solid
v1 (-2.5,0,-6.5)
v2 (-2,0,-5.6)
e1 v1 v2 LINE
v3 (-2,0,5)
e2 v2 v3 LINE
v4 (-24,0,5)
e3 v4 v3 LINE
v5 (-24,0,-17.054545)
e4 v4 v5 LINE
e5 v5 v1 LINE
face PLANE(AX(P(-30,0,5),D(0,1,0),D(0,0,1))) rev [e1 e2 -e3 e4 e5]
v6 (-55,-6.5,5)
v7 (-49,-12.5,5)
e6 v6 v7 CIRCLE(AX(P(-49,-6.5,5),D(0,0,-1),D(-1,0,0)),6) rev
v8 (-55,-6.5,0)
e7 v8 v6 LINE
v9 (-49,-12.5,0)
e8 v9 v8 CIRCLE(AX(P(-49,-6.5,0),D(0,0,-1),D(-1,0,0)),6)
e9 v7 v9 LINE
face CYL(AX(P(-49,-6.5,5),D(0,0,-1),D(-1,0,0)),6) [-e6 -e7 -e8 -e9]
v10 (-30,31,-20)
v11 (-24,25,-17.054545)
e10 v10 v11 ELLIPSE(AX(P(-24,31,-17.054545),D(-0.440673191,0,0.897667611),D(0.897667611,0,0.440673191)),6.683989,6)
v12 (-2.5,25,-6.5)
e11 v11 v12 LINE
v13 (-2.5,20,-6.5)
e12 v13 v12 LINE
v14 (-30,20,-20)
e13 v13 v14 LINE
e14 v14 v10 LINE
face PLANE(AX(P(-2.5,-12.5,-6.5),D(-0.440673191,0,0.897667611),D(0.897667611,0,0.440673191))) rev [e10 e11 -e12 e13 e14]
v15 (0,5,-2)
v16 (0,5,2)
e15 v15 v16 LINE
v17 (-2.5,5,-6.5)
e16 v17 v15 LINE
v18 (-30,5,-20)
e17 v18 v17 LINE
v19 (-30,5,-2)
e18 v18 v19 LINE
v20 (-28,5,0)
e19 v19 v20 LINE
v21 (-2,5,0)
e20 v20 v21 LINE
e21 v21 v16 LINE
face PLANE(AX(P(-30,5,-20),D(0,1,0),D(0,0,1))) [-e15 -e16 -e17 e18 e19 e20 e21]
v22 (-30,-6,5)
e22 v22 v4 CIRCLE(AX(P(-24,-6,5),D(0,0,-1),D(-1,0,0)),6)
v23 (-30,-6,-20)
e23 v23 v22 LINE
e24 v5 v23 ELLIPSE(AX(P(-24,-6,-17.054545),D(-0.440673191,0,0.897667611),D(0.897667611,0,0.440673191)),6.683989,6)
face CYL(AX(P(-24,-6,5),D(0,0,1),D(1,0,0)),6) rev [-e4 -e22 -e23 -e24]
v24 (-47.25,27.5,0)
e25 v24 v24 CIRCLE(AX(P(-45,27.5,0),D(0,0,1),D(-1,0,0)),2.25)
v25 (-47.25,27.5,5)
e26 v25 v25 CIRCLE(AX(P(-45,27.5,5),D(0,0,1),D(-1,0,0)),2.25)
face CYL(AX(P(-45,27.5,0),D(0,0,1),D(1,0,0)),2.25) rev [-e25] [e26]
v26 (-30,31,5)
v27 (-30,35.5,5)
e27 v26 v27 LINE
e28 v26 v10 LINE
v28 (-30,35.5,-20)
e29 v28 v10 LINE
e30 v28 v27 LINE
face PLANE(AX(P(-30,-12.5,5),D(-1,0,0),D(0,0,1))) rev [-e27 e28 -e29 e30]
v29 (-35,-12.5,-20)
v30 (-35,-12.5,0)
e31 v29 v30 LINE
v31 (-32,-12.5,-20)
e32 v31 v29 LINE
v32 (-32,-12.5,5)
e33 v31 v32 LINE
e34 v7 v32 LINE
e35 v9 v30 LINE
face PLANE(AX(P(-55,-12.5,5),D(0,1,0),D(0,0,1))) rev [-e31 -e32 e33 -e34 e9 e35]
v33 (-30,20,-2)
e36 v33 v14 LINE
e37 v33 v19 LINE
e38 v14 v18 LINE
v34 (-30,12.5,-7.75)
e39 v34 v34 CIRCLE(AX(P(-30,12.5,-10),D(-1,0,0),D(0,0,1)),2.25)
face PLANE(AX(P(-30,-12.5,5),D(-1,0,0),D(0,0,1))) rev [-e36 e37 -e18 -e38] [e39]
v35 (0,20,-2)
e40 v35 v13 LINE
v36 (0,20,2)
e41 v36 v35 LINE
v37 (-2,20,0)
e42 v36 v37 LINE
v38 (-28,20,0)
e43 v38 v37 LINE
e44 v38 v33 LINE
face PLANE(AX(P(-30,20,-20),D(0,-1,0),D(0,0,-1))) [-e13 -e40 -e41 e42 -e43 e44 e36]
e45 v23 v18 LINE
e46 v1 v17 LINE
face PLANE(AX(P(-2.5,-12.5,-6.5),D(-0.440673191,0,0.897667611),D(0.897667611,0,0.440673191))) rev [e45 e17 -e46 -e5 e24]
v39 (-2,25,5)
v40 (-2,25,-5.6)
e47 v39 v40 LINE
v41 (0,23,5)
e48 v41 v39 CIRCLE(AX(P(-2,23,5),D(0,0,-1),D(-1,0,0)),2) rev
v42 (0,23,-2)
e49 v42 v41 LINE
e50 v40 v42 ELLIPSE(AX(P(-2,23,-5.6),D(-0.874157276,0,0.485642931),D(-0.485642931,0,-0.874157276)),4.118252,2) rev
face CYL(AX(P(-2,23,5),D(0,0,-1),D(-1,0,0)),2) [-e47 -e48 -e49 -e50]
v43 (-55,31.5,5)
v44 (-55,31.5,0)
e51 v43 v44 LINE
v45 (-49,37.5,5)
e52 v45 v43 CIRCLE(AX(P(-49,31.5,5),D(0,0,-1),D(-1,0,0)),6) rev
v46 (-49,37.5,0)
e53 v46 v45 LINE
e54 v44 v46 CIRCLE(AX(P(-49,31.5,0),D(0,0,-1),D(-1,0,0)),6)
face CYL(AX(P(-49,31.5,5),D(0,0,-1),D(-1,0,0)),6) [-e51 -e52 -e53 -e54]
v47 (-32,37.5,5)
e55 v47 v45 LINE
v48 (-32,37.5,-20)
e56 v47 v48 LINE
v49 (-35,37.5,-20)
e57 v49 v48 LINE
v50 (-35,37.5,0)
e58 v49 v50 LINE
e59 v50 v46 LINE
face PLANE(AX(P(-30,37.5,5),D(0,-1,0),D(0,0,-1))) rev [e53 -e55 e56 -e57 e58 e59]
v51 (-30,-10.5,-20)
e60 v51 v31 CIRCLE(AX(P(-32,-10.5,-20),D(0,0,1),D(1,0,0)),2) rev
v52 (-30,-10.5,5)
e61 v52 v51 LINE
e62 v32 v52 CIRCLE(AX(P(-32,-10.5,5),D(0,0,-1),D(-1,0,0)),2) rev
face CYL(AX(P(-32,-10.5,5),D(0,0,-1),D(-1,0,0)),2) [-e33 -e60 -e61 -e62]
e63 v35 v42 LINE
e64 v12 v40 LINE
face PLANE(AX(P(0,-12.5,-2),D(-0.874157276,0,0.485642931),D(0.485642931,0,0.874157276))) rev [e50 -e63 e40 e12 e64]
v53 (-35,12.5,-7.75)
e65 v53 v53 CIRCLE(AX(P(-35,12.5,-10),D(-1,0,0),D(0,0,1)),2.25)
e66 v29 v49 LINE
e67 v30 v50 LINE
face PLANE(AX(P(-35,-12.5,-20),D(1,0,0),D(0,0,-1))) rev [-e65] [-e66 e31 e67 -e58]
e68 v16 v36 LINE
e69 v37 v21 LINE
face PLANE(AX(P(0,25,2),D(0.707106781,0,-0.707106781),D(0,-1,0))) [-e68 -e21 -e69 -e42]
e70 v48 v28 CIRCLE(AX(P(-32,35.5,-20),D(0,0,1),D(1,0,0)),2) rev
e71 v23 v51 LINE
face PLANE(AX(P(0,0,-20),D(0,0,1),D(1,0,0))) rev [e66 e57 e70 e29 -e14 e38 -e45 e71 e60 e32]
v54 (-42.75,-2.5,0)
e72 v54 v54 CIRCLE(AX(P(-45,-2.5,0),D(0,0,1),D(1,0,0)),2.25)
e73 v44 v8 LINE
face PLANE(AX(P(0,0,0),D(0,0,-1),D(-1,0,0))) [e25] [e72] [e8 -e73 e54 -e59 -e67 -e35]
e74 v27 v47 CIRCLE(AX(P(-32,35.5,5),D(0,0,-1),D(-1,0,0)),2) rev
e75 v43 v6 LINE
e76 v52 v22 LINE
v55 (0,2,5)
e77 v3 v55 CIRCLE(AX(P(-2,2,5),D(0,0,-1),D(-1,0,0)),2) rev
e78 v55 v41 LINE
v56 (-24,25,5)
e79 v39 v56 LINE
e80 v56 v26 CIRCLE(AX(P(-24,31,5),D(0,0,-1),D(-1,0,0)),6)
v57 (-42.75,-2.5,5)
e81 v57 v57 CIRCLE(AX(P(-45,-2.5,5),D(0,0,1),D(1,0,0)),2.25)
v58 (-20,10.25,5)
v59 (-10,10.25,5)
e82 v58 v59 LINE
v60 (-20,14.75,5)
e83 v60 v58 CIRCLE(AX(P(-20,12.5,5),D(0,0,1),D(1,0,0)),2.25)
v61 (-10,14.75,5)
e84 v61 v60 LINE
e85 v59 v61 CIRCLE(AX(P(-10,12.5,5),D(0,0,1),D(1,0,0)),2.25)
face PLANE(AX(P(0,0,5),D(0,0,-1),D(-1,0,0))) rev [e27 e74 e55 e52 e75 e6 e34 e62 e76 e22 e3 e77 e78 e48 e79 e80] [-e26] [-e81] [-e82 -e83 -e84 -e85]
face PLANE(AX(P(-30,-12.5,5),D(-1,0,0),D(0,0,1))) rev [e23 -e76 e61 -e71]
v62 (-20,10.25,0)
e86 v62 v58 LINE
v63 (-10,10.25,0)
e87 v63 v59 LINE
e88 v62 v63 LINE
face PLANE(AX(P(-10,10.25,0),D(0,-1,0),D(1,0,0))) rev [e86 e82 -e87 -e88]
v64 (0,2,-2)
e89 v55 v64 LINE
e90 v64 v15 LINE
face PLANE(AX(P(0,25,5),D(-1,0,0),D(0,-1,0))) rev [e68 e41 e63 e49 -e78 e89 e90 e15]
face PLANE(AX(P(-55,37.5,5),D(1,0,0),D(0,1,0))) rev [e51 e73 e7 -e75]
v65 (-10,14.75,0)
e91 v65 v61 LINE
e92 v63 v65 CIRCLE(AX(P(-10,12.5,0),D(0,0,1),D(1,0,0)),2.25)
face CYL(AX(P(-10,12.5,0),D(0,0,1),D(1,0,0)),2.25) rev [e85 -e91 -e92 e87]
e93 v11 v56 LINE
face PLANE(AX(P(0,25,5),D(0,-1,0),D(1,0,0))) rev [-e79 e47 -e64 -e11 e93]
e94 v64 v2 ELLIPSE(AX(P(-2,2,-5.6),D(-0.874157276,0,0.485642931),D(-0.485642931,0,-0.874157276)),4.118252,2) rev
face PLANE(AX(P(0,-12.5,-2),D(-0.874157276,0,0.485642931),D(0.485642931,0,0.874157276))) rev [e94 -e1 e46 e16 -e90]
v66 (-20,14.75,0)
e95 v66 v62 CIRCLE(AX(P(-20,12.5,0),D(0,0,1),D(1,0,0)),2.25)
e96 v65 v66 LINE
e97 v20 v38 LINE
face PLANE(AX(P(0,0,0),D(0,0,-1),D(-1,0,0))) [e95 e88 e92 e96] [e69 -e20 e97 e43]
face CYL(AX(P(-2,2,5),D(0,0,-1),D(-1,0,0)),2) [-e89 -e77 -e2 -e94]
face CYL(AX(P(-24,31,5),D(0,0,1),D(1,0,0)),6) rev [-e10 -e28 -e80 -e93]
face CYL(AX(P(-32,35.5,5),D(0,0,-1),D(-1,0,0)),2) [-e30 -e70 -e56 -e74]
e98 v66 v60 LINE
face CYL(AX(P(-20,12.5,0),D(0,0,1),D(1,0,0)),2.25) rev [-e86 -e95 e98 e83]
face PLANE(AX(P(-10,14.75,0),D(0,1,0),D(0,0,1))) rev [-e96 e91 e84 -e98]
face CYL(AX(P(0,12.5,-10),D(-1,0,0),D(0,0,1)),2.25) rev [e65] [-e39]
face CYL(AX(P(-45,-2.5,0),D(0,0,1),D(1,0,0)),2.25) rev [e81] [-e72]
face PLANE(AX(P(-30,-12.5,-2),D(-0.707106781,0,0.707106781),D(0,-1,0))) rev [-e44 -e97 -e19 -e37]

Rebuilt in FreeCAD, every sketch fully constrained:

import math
import FreeCAD as App
import Part
import Sketcher
from FreeCAD import Vector


def edges_at(feature, points):
    """Names of the edges that pass closest to the given points."""
    edges = feature.Shape.Edges
    near = lambda p: min(range(len(edges)), key=lambda i: edges[i].distToShape(Part.Vertex(*p))[0])
    return sorted({f"Edge{near(p) + 1}" for p in points})

doc = App.newDocument("Part")
body = doc.addObject("PartDesign::Body", "Body")

sketch1 = body.newObject("Sketcher::SketchObject", "Sketch")
sketch1.AttachmentSupport = (doc.getObject("XY_Plane"), [""])
sketch1.MapMode = "FlatFace"
sketch1.addGeometry([
    Part.LineSegment(Vector(0, 0, 0), Vector(0, 25, 0)),
    Part.LineSegment(Vector(0, 25, 0), Vector(-30, 25, 0)),
    Part.LineSegment(Vector(-30, 25, 0), Vector(-30, 38, 0)),
    Part.LineSegment(Vector(-30, 38, 0), Vector(-55, 38, 0)),
    Part.LineSegment(Vector(-55, 38, 0), Vector(-55, -12, 0)),
    Part.LineSegment(Vector(-55, -12, 0), Vector(-30, -12, 0)),
    Part.LineSegment(Vector(-30, -12, 0), Vector(-30, 0, 0)),
    Part.LineSegment(Vector(-30, 0, 0), Vector(0, 0, 0)),
], False)
sketch1.addConstraint([
    Sketcher.Constraint("Coincident", 0, 2, 1, 1),
    Sketcher.Constraint("Coincident", 1, 2, 2, 1),
    Sketcher.Constraint("Coincident", 2, 2, 3, 1),
    Sketcher.Constraint("Coincident", 3, 2, 4, 1),
    Sketcher.Constraint("Coincident", 4, 2, 5, 1),
    Sketcher.Constraint("Coincident", 5, 2, 6, 1),
    Sketcher.Constraint("Coincident", 6, 2, 7, 1),
    Sketcher.Constraint("Coincident", 7, 2, 0, 1),
    Sketcher.Constraint("Vertical", 0),
    Sketcher.Constraint("Horizontal", 1),
    Sketcher.Constraint("Vertical", 2),
    Sketcher.Constraint("Horizontal", 3),
    Sketcher.Constraint("Vertical", 4),
    Sketcher.Constraint("Horizontal", 5),
    Sketcher.Constraint("Vertical", 6),
    Sketcher.Constraint("Horizontal", 7),
    Sketcher.Constraint("Coincident", 7, 2, -1, 1),
    Sketcher.Constraint("Vertical", 2, 2, 5, 2),
    Sketcher.Constraint("Equal", 5, 0),
    Sketcher.Constraint("Equal", 2, 6),
    Sketcher.Constraint("DistanceX", 1, 2, 1, 1, 30.0),
    Sketcher.Constraint("DistanceX", 3, 2, 3, 1, 25.0),
    Sketcher.Constraint("DistanceY", 4, 2, 4, 1, 50.0),
])
pad1 = body.newObject("PartDesign::Pad", "Pad")
pad1.Profile = sketch1
pad1.Length = 5

sketch2 = body.newObject("Sketcher::SketchObject", "Sketch001")
sketch2.AttachmentSupport = (doc.getObject("XY_Plane"), [""])
sketch2.MapMode = "FlatFace"
sketch2.AttachmentOffset = App.Placement(Vector(0, 0, 5), App.Rotation())
sketch2.addGeometry([
    Part.Circle(Vector(-45, -2.5, 0), Vector(0, 0, 1), 2.2),
    Part.Circle(Vector(-45, 27.5, 0), Vector(0, 0, 1), 2.2),
    Part.LineSegment(Vector(-20, 10.2, 0), Vector(-10, 10.2, 0)),
    Part.ArcOfCircle(Part.Circle(Vector(-10, 12.5, 0), Vector(0, 0, 1), 2.2), math.radians(-90), math.radians(90)),
    Part.LineSegment(Vector(-10, 14.8, 0), Vector(-20, 14.8, 0)),
    Part.ArcOfCircle(Part.Circle(Vector(-20, 12.5, 0), Vector(0, 0, 1), 2.2), math.radians(90), math.radians(270)),
], False)
sketch2.addConstraint([
    Sketcher.Constraint("Tangent", 2, 2, 3, 1),
    Sketcher.Constraint("Tangent", 3, 2, 4, 1),
    Sketcher.Constraint("Tangent", 4, 2, 5, 1),
    Sketcher.Constraint("Tangent", 5, 2, 2, 1),
    Sketcher.Constraint("Horizontal", 2),
    Sketcher.Constraint("Horizontal", 4),
    Sketcher.Constraint("Equal", 0, 1),
    Sketcher.Constraint("Equal", 1, 3),
    Sketcher.Constraint("Vertical", 0, 3, 1, 3),
    Sketcher.Constraint("Diameter", 0, 4.5),
    Sketcher.Constraint("DistanceX", 2, 1, 2, 2, 10.0),
    Sketcher.Constraint("DistanceX", 0, 3, -1, 1, 45.0),
    Sketcher.Constraint("DistanceX", 3, 3, -1, 1, 10.0),
    Sketcher.Constraint("DistanceY", 0, 3, 1, 3, 30.0),
    Sketcher.Constraint("DistanceY", 0, 3, 3, 3, 15.0),
    Sketcher.Constraint("DistanceY", 0, 3, -1, 1, 2.5),
])
pocket1 = body.newObject("PartDesign::Pocket", "Pocket")
pocket1.Profile = sketch2
pocket1.Type = "ThroughAll"

sketch3 = body.newObject("Sketcher::SketchObject", "Sketch002")
sketch3.AttachmentSupport = (doc.getObject("XY_Plane"), [""])
sketch3.MapMode = "FlatFace"
sketch3.addGeometry([
    Part.LineSegment(Vector(-30, 38, 0), Vector(-30, -12, 0)),
    Part.LineSegment(Vector(-30, -12, 0), Vector(-35, -12, 0)),
    Part.LineSegment(Vector(-35, -12, 0), Vector(-35, 38, 0)),
    Part.LineSegment(Vector(-35, 38, 0), Vector(-30, 38, 0)),
], False)
sketch3.addConstraint([
    Sketcher.Constraint("Coincident", 0, 2, 1, 1),
    Sketcher.Constraint("Coincident", 1, 2, 2, 1),
    Sketcher.Constraint("Coincident", 2, 2, 3, 1),
    Sketcher.Constraint("Coincident", 3, 2, 0, 1),
    Sketcher.Constraint("Vertical", 0),
    Sketcher.Constraint("Horizontal", 1),
    Sketcher.Constraint("Vertical", 2),
    Sketcher.Constraint("Horizontal", 3),
    Sketcher.Constraint("DistanceX", 1, 2, 1, 1, 5.0),
    Sketcher.Constraint("DistanceY", 0, 2, 0, 1, 50.0),
    Sketcher.Constraint("DistanceX", 0, 2, -1, 1, 30.0),
    Sketcher.Constraint("DistanceY", 0, 2, -1, 1, 12.5),
])
pad2 = body.newObject("PartDesign::Pad", "Pad001")
pad2.Profile = sketch3
pad2.Length = 20
pad2.Reversed = True

sketch4 = body.newObject("Sketcher::SketchObject", "Sketch003")
sketch4.AttachmentSupport = (doc.getObject("YZ_Plane"), [""])
sketch4.MapMode = "FlatFace"
sketch4.AttachmentOffset = App.Placement(Vector(0, 0, -35), App.Rotation())
sketch4.addGeometry(Part.Circle(Vector(12.5, -10, 0), Vector(0, 0, 1), 2.2), False)
sketch4.addConstraint([
    Sketcher.Constraint("Diameter", 0, 4.5),
    Sketcher.Constraint("DistanceY", 0, 3, -1, 1, 10.0),
    Sketcher.Constraint("DistanceX", -1, 1, 0, 3, 12.5),
])
pocket2 = body.newObject("PartDesign::Pocket", "Pocket001")
pocket2.Profile = sketch4
pocket2.Type = "ThroughAll"
pocket2.Reversed = True

sketch5 = body.newObject("Sketcher::SketchObject", "Sketch004")
sketch5.AttachmentSupport = (doc.getObject("YZ_Plane"), [""])
sketch5.MapMode = "FlatFace"
sketch5.addGeometry([
    Part.LineSegment(Vector(25, 0, 0), Vector(20, 0, 0)),
    Part.LineSegment(Vector(20, 0, 0), Vector(20, -20, 0)),
    Part.LineSegment(Vector(20, -20, 0), Vector(25, -20, 0)),
    Part.LineSegment(Vector(25, -20, 0), Vector(25, 0, 0)),
    Part.LineSegment(Vector(5, 0, 0), Vector(0, 0, 0)),
    Part.LineSegment(Vector(0, 0, 0), Vector(0, -20, 0)),
    Part.LineSegment(Vector(0, -20, 0), Vector(5, -20, 0)),
    Part.LineSegment(Vector(5, -20, 0), Vector(5, 0, 0)),
], False)
sketch5.addConstraint([
    Sketcher.Constraint("Coincident", 0, 2, 1, 1),
    Sketcher.Constraint("Coincident", 1, 2, 2, 1),
    Sketcher.Constraint("Coincident", 2, 2, 3, 1),
    Sketcher.Constraint("Coincident", 3, 2, 0, 1),
    Sketcher.Constraint("Coincident", 4, 2, 5, 1),
    Sketcher.Constraint("Coincident", 5, 2, 6, 1),
    Sketcher.Constraint("Coincident", 6, 2, 7, 1),
    Sketcher.Constraint("Coincident", 7, 2, 4, 1),
    Sketcher.Constraint("Horizontal", 0),
    Sketcher.Constraint("Vertical", 1),
    Sketcher.Constraint("Horizontal", 2),
    Sketcher.Constraint("Vertical", 3),
    Sketcher.Constraint("Horizontal", 4),
    Sketcher.Constraint("Vertical", 5),
    Sketcher.Constraint("Horizontal", 6),
    Sketcher.Constraint("Vertical", 7),
    Sketcher.Constraint("Coincident", 4, 2, -1, 1),
    Sketcher.Constraint("PointOnObject", 0, 2, -1),
    Sketcher.Constraint("Horizontal", 2, 2, 5, 2),
    Sketcher.Constraint("Equal", 2, 4),
    Sketcher.Constraint("DistanceX", 0, 2, 0, 1, 5.0),
    Sketcher.Constraint("DistanceY", 1, 2, 1, 1, 20.0),
    Sketcher.Constraint("DistanceX", -1, 1, 0, 2, 20.0),
])
pad3 = body.newObject("PartDesign::Pad", "Pad002")
pad3.Profile = sketch5
pad3.Length = 30
pad3.Reversed = True

sketch6 = body.newObject("Sketcher::SketchObject", "Sketch005")
sketch6.AttachmentSupport = (doc.getObject("XZ_Plane"), [""])
sketch6.MapMode = "FlatFace"
sketch6.AttachmentOffset = App.Placement(Vector(0, 0, -25), App.Rotation())
sketch6.addGeometry([
    Part.LineSegment(Vector(0, -20, 0), Vector(-30, -20, 0)),
    Part.LineSegment(Vector(-30, -20, 0), Vector(-2, -6, 0)),
    Part.LineSegment(Vector(-2, -6, 0), Vector(0, -2, 0)),
    Part.LineSegment(Vector(0, -2, 0), Vector(0, -20, 0)),
], False)
sketch6.addConstraint([
    Sketcher.Constraint("Coincident", 0, 2, 1, 1),
    Sketcher.Constraint("Coincident", 1, 2, 2, 1),
    Sketcher.Constraint("Coincident", 2, 2, 3, 1),
    Sketcher.Constraint("Coincident", 3, 2, 0, 1),
    Sketcher.Constraint("Horizontal", 0),
    Sketcher.Constraint("Vertical", 3),
    Sketcher.Constraint("PointOnObject", 2, 2, -2),
    Sketcher.Constraint("DistanceX", 0, 2, 0, 1, 30.0),
    Sketcher.Constraint("DistanceY", 3, 2, 3, 1, 18.0),
    Sketcher.Constraint("DistanceY", 0, 2, -1, 1, 20.0),
    Sketcher.Constraint("DistanceX", 1, 2, -1, 1, 2.5),
    Sketcher.Constraint("DistanceY", 1, 2, -1, 1, 6.5),
])
pocket3 = body.newObject("PartDesign::Pocket", "Pocket002")
pocket3.Profile = sketch6
pocket3.Type = "ThroughAll"
pocket3.Reversed = True
doc.recompute()

fillet = body.newObject("PartDesign::Fillet", "Fillet")
fillet.Base = (pocket3, edges_at(pocket3, [(-30, 0, -7.5), (-30, 25, -7.5)]))
fillet.Radius = 6
doc.recompute()

chamfer = body.newObject("PartDesign::Chamfer", "Chamfer")
chamfer.Base = (fillet, edges_at(fillet, [(-30, 12.5, 0), (0, 12.5, 0)]))
chamfer.Size = 2
doc.recompute()

fillet2 = body.newObject("PartDesign::Fillet", "Fillet001")
fillet2.Base = (chamfer, edges_at(chamfer, [(-55, -12.5, 2.5), (-55, 37.5, 2.5)]))
fillet2.Radius = 6
doc.recompute()

fillet3 = body.newObject("PartDesign::Fillet", "Fillet002")
fillet3.Base = (fillet2, edges_at(fillet2, [
    (0, 25, 1.5),
    (0, 0, 1.5),
    (-30, -12.5, -7.5),
    (-30, 37.5, -7.5),
]))
fillet3.Radius = 2

doc.recompute()
